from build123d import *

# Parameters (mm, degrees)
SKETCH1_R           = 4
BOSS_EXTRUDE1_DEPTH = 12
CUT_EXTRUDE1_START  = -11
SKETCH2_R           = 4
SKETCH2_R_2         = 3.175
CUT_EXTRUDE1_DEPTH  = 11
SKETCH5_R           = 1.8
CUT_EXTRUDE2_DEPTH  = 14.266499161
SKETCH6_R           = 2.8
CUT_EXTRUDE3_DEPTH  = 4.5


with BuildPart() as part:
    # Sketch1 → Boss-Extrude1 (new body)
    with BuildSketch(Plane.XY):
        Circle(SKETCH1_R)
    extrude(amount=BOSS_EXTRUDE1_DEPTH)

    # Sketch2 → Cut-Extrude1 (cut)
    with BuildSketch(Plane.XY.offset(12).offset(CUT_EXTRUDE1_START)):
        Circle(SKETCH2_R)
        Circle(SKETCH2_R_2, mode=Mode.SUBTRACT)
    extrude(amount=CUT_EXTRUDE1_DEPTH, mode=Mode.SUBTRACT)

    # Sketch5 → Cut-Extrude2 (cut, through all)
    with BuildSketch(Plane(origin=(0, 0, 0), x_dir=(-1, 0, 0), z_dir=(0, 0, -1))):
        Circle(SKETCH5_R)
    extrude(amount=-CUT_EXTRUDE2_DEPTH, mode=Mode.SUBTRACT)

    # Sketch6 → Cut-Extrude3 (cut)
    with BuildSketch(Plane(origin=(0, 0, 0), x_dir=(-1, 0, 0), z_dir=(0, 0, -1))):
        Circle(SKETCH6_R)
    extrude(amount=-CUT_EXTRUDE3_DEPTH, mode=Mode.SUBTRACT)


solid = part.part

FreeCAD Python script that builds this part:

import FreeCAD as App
import Part
import Sketcher
from FreeCAD import Vector

doc = App.newDocument("Part")
body = doc.addObject("PartDesign::Body", "Body")

# Sketch on XY plane
sketch1 = doc.addObject("Sketcher::SketchObject", "Sketch")
body.addObject(sketch1)
sketch1.AttachmentSupport = (doc.XY_Plane, [""])
sketch1.MapMode = "FlatFace"
sketch1.addGeometry(Part.Circle(Vector(0, 0, 0), Vector(0, 0, 1), 4), False)
sketch1.addConstraint([
    Sketcher.Constraint("Coincident", 0, 3, -1, 1),
    Sketcher.Constraint("Diameter", 0, 8.0),
])
pad1 = doc.addObject("PartDesign::Pad", "Pad")
body.addObject(pad1)
pad1.Profile = sketch1
pad1.Length = 12

# Sketch on XY plane
sketch2 = doc.addObject("Sketcher::SketchObject", "Sketch001")
body.addObject(sketch2)
sketch2.AttachmentSupport = (doc.XY_Plane, [""])
sketch2.MapMode = "FlatFace"
sketch2.AttachmentOffset = App.Placement(Vector(0, 0, 1), App.Rotation())
sketch2.addGeometry([
    Part.Circle(Vector(0, 0, 0), Vector(0, 0, 1), 4),
    Part.Circle(Vector(0, 0, 0), Vector(0, 0, 1), 3.2),
], False)
sketch2.addConstraint([
    Sketcher.Constraint("Coincident", 0, 3, -1, 1),
    Sketcher.Constraint("Coincident", 1, 3, -1, 1),
    Sketcher.Constraint("Diameter", 0, 8.0),
    Sketcher.Constraint("Diameter", 1, 6.35),
])
pocket1 = doc.addObject("PartDesign::Pocket", "Pocket")
body.addObject(pocket1)
pocket1.Profile = sketch2
pocket1.Length = 11
pocket1.Reversed = True

# Sketch on XY plane
sketch3 = doc.addObject("Sketcher::SketchObject", "Sketch002")
body.addObject(sketch3)
sketch3.AttachmentSupport = (doc.XY_Plane, [""])
sketch3.MapMode = "FlatFace"
sketch3.addGeometry(Part.Circle(Vector(0, 0, 0), Vector(0, 0, 1), 1.8), False)
sketch3.addConstraint([
    Sketcher.Constraint("Coincident", 0, 3, -1, 1),
    Sketcher.Constraint("Diameter", 0, 3.6),
])
pocket2 = doc.addObject("PartDesign::Pocket", "Pocket001")
body.addObject(pocket2)
pocket2.Profile = sketch3
pocket2.Type = "ThroughAll"
pocket2.Reversed = True

# Sketch on XY plane
sketch4 = doc.addObject("Sketcher::SketchObject", "Sketch003")
body.addObject(sketch4)
sketch4.AttachmentSupport = (doc.XY_Plane, [""])
sketch4.MapMode = "FlatFace"
sketch4.addGeometry(Part.Circle(Vector(0, 0, 0), Vector(0, 0, 1), 2.8), False)
sketch4.addConstraint([
    Sketcher.Constraint("Coincident", 0, 3, -1, 1),
    Sketcher.Constraint("Diameter", 0, 5.6),
])
pocket3 = doc.addObject("PartDesign::Pocket", "Pocket002")
body.addObject(pocket3)
pocket3.Profile = sketch4
pocket3.Length = 4.5
pocket3.Reversed = True

doc.recompute()
